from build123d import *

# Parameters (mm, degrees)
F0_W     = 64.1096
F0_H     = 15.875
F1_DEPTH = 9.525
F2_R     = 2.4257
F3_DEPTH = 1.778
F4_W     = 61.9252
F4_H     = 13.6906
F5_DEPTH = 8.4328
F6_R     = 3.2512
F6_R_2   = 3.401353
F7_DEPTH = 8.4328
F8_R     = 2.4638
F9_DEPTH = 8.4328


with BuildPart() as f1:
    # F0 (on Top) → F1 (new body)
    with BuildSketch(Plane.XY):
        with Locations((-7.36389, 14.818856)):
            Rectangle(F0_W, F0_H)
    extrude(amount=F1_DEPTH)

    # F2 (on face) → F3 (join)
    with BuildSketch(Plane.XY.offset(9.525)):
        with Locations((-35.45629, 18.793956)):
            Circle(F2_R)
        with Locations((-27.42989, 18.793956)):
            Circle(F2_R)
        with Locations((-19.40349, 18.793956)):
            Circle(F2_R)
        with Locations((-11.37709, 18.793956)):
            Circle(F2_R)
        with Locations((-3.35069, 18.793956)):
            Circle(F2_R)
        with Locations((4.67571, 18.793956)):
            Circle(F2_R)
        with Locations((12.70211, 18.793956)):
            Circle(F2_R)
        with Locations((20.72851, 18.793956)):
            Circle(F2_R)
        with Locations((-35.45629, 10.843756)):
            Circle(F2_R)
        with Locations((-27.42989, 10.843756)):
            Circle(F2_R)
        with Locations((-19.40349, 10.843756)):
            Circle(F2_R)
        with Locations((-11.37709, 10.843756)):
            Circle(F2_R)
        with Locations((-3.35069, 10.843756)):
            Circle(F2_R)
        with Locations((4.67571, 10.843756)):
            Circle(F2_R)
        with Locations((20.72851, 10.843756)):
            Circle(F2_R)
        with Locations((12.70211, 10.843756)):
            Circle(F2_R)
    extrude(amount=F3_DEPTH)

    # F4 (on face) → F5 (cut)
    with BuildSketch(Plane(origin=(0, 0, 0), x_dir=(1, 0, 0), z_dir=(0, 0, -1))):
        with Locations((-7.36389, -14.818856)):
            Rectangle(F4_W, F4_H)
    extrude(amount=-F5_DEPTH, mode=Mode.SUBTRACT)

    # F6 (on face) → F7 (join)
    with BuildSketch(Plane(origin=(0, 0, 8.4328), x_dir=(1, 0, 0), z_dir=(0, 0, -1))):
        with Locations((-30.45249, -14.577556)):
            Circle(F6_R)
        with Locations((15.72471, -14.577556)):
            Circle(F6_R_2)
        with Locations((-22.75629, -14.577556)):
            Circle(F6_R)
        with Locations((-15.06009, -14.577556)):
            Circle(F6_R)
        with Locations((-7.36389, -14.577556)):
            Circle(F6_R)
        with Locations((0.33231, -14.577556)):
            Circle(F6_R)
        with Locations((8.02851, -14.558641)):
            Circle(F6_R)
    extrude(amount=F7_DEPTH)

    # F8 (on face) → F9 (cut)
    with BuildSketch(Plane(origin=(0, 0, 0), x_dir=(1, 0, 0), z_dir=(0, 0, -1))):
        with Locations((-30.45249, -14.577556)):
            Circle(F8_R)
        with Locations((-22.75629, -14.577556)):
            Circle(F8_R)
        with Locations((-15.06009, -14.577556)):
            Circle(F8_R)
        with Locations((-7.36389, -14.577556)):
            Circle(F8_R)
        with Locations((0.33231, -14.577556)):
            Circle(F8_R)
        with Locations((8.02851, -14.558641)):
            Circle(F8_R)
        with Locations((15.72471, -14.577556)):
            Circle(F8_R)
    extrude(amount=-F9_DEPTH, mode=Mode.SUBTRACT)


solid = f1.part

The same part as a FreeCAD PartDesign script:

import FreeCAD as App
import Part
import Sketcher

V = App.Vector
Q = App.Units.Quantity

doc = App.newDocument("Part")
body = doc.addObject("PartDesign::Body", "Body")

sketch1 = body.newObject("Sketcher::SketchObject", "Sketch")
sketch1.AttachmentSupport = (doc.getObject("XY_Plane"), [""])
sketch1.MapMode = "FlatFace"
sketch1.addGeometry([
    Part.LineSegment(V(-39, 23, 0), V(-39, 7, 0)),
    Part.LineSegment(V(-39, 7, 0), V(25, 7, 0)),
    Part.LineSegment(V(25, 7, 0), V(25, 23, 0)),
    Part.LineSegment(V(25, 23, 0), V(-39, 23, 0)),
], False)
sketch1.addConstraint([
    Sketcher.Constraint("Coincident", 0, 2, 1, 1),
    Sketcher.Constraint("Coincident", 1, 2, 2, 1),
    Sketcher.Constraint("Coincident", 2, 2, 3, 1),
    Sketcher.Constraint("Coincident", 3, 2, 0, 1),
    Sketcher.Constraint("Vertical", 0),
    Sketcher.Constraint("Horizontal", 1),
    Sketcher.Constraint("Vertical", 2),
    Sketcher.Constraint("Horizontal", 3),
    Sketcher.Constraint("DistanceX", 1, 1, 1, 2, Q("2.524 in")),
    Sketcher.Constraint("DistanceY", 0, 2, 0, 1, Q("0.625 in")),
    Sketcher.Constraint("DistanceX", 0, 2, -1, 1, 39.41869),
    Sketcher.Constraint("DistanceY", -1, 1, 0, 2, 6.881356),
])
pad1 = body.newObject("PartDesign::Pad", "Pad")
pad1.Profile = sketch1
pad1.Length = Q("0.375 in")

sketch2 = body.newObject("Sketcher::SketchObject", "Sketch001")
sketch2.AttachmentSupport = (doc.getObject("XY_Plane"), [""])
sketch2.MapMode = "FlatFace"
sketch2.AttachmentOffset = App.Placement(V(0, 0, 0.375 * 25.4), App.Rotation())
sketch2.addGeometry([
    Part.Circle(V(-35.5, 18.8, 0), V(0, 0, 1), 2.4),
    Part.Circle(V(-27.4, 18.8, 0), V(0, 0, 1), 2.4),
    Part.Circle(V(-19.4, 18.8, 0), V(0, 0, 1), 2.4),
    Part.Circle(V(-11.4, 18.8, 0), V(0, 0, 1), 2.4),
    Part.Circle(V(-3.4, 18.8, 0), V(0, 0, 1), 2.4),
    Part.Circle(V(4.7, 18.8, 0), V(0, 0, 1), 2.4),
    Part.Circle(V(12.7, 18.8, 0), V(0, 0, 1), 2.4),
    Part.Circle(V(20.7, 18.8, 0), V(0, 0, 1), 2.4),
    Part.Circle(V(-35.5, 10.8, 0), V(0, 0, 1), 2.4),
    Part.Circle(V(-27.4, 10.8, 0), V(0, 0, 1), 2.4),
    Part.Circle(V(-19.4, 10.8, 0), V(0, 0, 1), 2.4),
    Part.Circle(V(-11.4, 10.8, 0), V(0, 0, 1), 2.4),
    Part.Circle(V(-3.4, 10.8, 0), V(0, 0, 1), 2.4),
    Part.Circle(V(4.7, 10.8, 0), V(0, 0, 1), 2.4),
    Part.Circle(V(20.7, 10.8, 0), V(0, 0, 1), 2.4),
    Part.Circle(V(12.7, 10.8, 0), V(0, 0, 1), 2.4),
], False)
sketch2.addConstraint([
    Sketcher.Constraint("Equal", 0, 1),
    Sketcher.Constraint("Equal", 1, 2),
    Sketcher.Constraint("Equal", 2, 3),
    Sketcher.Constraint("Equal", 3, 4),
    Sketcher.Constraint("Equal", 4, 5),
    Sketcher.Constraint("Equal", 5, 6),
    Sketcher.Constraint("Equal", 6, 7),
    Sketcher.Constraint("Equal", 7, 8),
    Sketcher.Constraint("Equal", 8, 9),
    Sketcher.Constraint("Equal", 9, 10),
    Sketcher.Constraint("Equal", 10, 11),
    Sketcher.Constraint("Equal", 11, 12),
    Sketcher.Constraint("Equal", 12, 13),
    Sketcher.Constraint("Equal", 13, 14),
    Sketcher.Constraint("Equal", 14, 15),
    Sketcher.Constraint("Horizontal", 0, 3, 1, 3),
    Sketcher.Constraint("Horizontal", 1, 3, 2, 3),
    Sketcher.Constraint("Horizontal", 2, 3, 3, 3),
    Sketcher.Constraint("Horizontal", 3, 3, 4, 3),
    Sketcher.Constraint("Horizontal", 4, 3, 5, 3),
    Sketcher.Constraint("Horizontal", 5, 3, 6, 3),
    Sketcher.Constraint("Horizontal", 6, 3, 7, 3),
    Sketcher.Constraint("Horizontal", 8, 3, 9, 3),
    Sketcher.Constraint("Horizontal", 9, 3, 10, 3),
    Sketcher.Constraint("Horizontal", 10, 3, 11, 3),
    Sketcher.Constraint("Horizontal", 11, 3, 12, 3),
    Sketcher.Constraint("Horizontal", 12, 3, 13, 3),
    Sketcher.Constraint("Horizontal", 13, 3, 14, 3),
    Sketcher.Constraint("Horizontal", 14, 3, 15, 3),
    Sketcher.Constraint("Vertical", 0, 3, 8, 3),
    Sketcher.Constraint("Vertical", 1, 3, 9, 3),
    Sketcher.Constraint("Vertical", 2, 3, 10, 3),
    Sketcher.Constraint("Vertical", 3, 3, 11, 3),
    Sketcher.Constraint("Vertical", 4, 3, 12, 3),
    Sketcher.Constraint("Vertical", 5, 3, 13, 3),
    Sketcher.Constraint("Vertical", 7, 3, 14, 3),
    Sketcher.Constraint("Vertical", 6, 3, 15, 3),
    Sketcher.Constraint("Diameter", 0, Q("0.191 in")),
    Sketcher.Constraint("DistanceX", 0, 3, 5, 3, Q("1.58 in")),
    Sketcher.Constraint("DistanceX", 1, 3, 6, 3, Q("1.58 in")),
    Sketcher.Constraint("DistanceX", 2, 3, 7, 3, Q("1.58 in")),
    Sketcher.Constraint("DistanceX", 0, 3, 1, 3, Q("0.316 in")),
    Sketcher.Constraint("DistanceX", 1, 3, 2, 3, Q("0.316 in")),
    Sketcher.Constraint("DistanceX", 2, 3, 3, 3, Q("0.316 in")),
    Sketcher.Constraint("DistanceX", 3, 3, 4, 3, Q("0.316 in")),
    Sketcher.Constraint("DistanceY", 8, 3, 0, 3, Q("0.313 in")),
    Sketcher.Constraint("DistanceX", 0, 3, -1, 1, 35.45629),
    Sketcher.Constraint("DistanceY", -1, 1, 0, 3, 18.793956),
])
pad2 = body.newObject("PartDesign::Pad", "Pad001")
pad2.Profile = sketch2
pad2.Length = Q("0.07 in")

sketch3 = body.newObject("Sketcher::SketchObject", "Sketch002")
sketch3.AttachmentSupport = (doc.getObject("XY_Plane"), [""])
sketch3.MapMode = "FlatFace"
sketch3.addGeometry([
    Part.LineSegment(V(-38, 8, 0), V(-38, 22, 0)),
    Part.LineSegment(V(-38, 22, 0), V(24, 22, 0)),
    Part.LineSegment(V(24, 22, 0), V(24, 8, 0)),
    Part.LineSegment(V(24, 8, 0), V(-38, 8, 0)),
], False)
sketch3.addConstraint([
    Sketcher.Constraint("Coincident", 0, 2, 1, 1),
    Sketcher.Constraint("Coincident", 1, 2, 2, 1),
    Sketcher.Constraint("Coincident", 2, 2, 3, 1),
    Sketcher.Constraint("Coincident", 3, 2, 0, 1),
    Sketcher.Constraint("Vertical", 0),
    Sketcher.Constraint("Horizontal", 1),
    Sketcher.Constraint("Vertical", 2),
    Sketcher.Constraint("Horizontal", 3),
    Sketcher.Constraint("DistanceX", 1, 1, 1, 2, Q("2.438 in")),
    Sketcher.Constraint("DistanceY", 0, 1, 0, 2, Q("0.539 in")),
    Sketcher.Constraint("DistanceX", 0, 2, -1, 1, 38.32649),
    Sketcher.Constraint("DistanceY", -1, 1, 0, 2, 21.664156),
])
pocket1 = body.newObject("PartDesign::Pocket", "Pocket")
pocket1.Profile = sketch3
pocket1.Length = Q("0.332 in")
pocket1.Reversed = True

sketch4 = body.newObject("Sketcher::SketchObject", "Sketch003")
sketch4.AttachmentSupport = (doc.getObject("XY_Plane"), [""])
sketch4.MapMode = "FlatFace"
sketch4.AttachmentOffset = App.Placement(V(0, 0, 0.332 * 25.4), App.Rotation())
sketch4.addGeometry([
    Part.Circle(V(-30.5, 14.6, 0), V(0, 0, 1), 3.3),
    Part.Circle(V(15.7, 14.6, 0), V(0, 0, 1), 3.4),
    Part.Circle(V(-22.8, 14.6, 0), V(0, 0, 1), 3.3),
    Part.Circle(V(-15.1, 14.6, 0), V(0, 0, 1), 3.3),
    Part.Circle(V(-7.4, 14.6, 0), V(0, 0, 1), 3.3),
    Part.Circle(V(0.3, 14.6, 0), V(0, 0, 1), 3.3),
    Part.Circle(V(8, 14.6, 0), V(0, 0, 1), 3.3),
], False)
sketch4.addConstraint([
    Sketcher.Constraint("Equal", 0, 2),
    Sketcher.Constraint("Equal", 2, 3),
    Sketcher.Constraint("Equal", 3, 4),
    Sketcher.Constraint("Equal", 4, 5),
    Sketcher.Constraint("Equal", 5, 6),
    Sketcher.Constraint("Horizontal", 0, 3, 1, 3),
    Sketcher.Constraint("Horizontal", 1, 3, 2, 3),
    Sketcher.Constraint("Horizontal", 2, 3, 3, 3),
    Sketcher.Constraint("Horizontal", 3, 3, 4, 3),
    Sketcher.Constraint("Horizontal", 4, 3, 5, 3),
    Sketcher.Constraint("Diameter", 0, Q("0.256 in")),
    Sketcher.Constraint("DistanceX", 0, 3, 1, 3, Q("1.818 in")),
    Sketcher.Constraint("DistanceX", 0, 3, 2, 3, Q("0.303 in")),
    Sketcher.Constraint("DistanceX", 2, 3, 3, 3, Q("0.303 in")),
    Sketcher.Constraint("DistanceX", 3, 3, 4, 3, Q("0.303 in")),
    Sketcher.Constraint("DistanceX", 4, 3, 5, 3, Q("0.303 in")),
    Sketcher.Constraint("DistanceX", 6, 3, 1, 3, Q("0.303 in")),
    Sketcher.Constraint("Diameter", 1, 6.802706),
    Sketcher.Constraint("DistanceX", 0, 3, -1, 1, 30.45249),
    Sketcher.Constraint("DistanceY", -1, 1, 6, 3, 14.558641),
    Sketcher.Constraint("DistanceY", -1, 1, 0, 3, 14.577556),
])
pad3 = body.newObject("PartDesign::Pad", "Pad002")
pad3.Profile = sketch4
pad3.Length = Q("0.332 in")
pad3.Reversed = True

sketch5 = body.newObject("Sketcher::SketchObject", "Sketch004")
sketch5.AttachmentSupport = (doc.getObject("XY_Plane"), [""])
sketch5.MapMode = "FlatFace"
sketch5.addGeometry([
    Part.Circle(V(-30.5, 14.6, 0), V(0, 0, 1), 2.5),
    Part.Circle(V(-22.8, 14.6, 0), V(0, 0, 1), 2.5),
    Part.Circle(V(-15.1, 14.6, 0), V(0, 0, 1), 2.5),
    Part.Circle(V(-7.4, 14.6, 0), V(0, 0, 1), 2.5),
    Part.Circle(V(0.3, 14.6, 0), V(0, 0, 1), 2.5),
    Part.Circle(V(8, 14.6, 0), V(0, 0, 1), 2.5),
    Part.Circle(V(15.7, 14.6, 0), V(0, 0, 1), 2.5),
], False)
sketch5.addConstraint([
    Sketcher.Constraint("Equal", 0, 1),
    Sketcher.Constraint("Equal", 1, 2),
    Sketcher.Constraint("Equal", 2, 3),
    Sketcher.Constraint("Equal", 3, 4),
    Sketcher.Constraint("Equal", 4, 5),
    Sketcher.Constraint("Equal", 5, 6),
    Sketcher.Constraint("Horizontal", 0, 3, 1, 3),
    Sketcher.Constraint("Horizontal", 1, 3, 2, 3),
    Sketcher.Constraint("Horizontal", 2, 3, 3, 3),
    Sketcher.Constraint("Horizontal", 3, 3, 4, 3),
    Sketcher.Constraint("Horizontal", 4, 3, 6, 3),
    Sketcher.Constraint("Diameter", 0, Q("0.194 in")),
    Sketcher.Constraint("DistanceX", 0, 3, 1, 3, Q("0.303 in")),
    Sketcher.Constraint("DistanceX", 1, 3, 2, 3, Q("0.303 in")),
    Sketcher.Constraint("DistanceX", 2, 3, 3, 3, Q("0.303 in")),
    Sketcher.Constraint("DistanceX", 3, 3, 4, 3, Q("0.303 in")),
    Sketcher.Constraint("DistanceX", 4, 3, 5, 3, Q("0.303 in")),
    Sketcher.Constraint("DistanceX", 5, 3, 6, 3, Q("0.303 in")),
    Sketcher.Constraint("DistanceX", 0, 3, -1, 1, 30.45249),
    Sketcher.Constraint("DistanceY", -1, 1, 5, 3, 14.558641),
    Sketcher.Constraint("DistanceY", -1, 1, 0, 3, 14.577556),
])
pocket2 = body.newObject("PartDesign::Pocket", "Pocket001")
pocket2.Profile = sketch5
pocket2.Length = Q("0.332 in")
pocket2.Reversed = True

doc.recompute()
